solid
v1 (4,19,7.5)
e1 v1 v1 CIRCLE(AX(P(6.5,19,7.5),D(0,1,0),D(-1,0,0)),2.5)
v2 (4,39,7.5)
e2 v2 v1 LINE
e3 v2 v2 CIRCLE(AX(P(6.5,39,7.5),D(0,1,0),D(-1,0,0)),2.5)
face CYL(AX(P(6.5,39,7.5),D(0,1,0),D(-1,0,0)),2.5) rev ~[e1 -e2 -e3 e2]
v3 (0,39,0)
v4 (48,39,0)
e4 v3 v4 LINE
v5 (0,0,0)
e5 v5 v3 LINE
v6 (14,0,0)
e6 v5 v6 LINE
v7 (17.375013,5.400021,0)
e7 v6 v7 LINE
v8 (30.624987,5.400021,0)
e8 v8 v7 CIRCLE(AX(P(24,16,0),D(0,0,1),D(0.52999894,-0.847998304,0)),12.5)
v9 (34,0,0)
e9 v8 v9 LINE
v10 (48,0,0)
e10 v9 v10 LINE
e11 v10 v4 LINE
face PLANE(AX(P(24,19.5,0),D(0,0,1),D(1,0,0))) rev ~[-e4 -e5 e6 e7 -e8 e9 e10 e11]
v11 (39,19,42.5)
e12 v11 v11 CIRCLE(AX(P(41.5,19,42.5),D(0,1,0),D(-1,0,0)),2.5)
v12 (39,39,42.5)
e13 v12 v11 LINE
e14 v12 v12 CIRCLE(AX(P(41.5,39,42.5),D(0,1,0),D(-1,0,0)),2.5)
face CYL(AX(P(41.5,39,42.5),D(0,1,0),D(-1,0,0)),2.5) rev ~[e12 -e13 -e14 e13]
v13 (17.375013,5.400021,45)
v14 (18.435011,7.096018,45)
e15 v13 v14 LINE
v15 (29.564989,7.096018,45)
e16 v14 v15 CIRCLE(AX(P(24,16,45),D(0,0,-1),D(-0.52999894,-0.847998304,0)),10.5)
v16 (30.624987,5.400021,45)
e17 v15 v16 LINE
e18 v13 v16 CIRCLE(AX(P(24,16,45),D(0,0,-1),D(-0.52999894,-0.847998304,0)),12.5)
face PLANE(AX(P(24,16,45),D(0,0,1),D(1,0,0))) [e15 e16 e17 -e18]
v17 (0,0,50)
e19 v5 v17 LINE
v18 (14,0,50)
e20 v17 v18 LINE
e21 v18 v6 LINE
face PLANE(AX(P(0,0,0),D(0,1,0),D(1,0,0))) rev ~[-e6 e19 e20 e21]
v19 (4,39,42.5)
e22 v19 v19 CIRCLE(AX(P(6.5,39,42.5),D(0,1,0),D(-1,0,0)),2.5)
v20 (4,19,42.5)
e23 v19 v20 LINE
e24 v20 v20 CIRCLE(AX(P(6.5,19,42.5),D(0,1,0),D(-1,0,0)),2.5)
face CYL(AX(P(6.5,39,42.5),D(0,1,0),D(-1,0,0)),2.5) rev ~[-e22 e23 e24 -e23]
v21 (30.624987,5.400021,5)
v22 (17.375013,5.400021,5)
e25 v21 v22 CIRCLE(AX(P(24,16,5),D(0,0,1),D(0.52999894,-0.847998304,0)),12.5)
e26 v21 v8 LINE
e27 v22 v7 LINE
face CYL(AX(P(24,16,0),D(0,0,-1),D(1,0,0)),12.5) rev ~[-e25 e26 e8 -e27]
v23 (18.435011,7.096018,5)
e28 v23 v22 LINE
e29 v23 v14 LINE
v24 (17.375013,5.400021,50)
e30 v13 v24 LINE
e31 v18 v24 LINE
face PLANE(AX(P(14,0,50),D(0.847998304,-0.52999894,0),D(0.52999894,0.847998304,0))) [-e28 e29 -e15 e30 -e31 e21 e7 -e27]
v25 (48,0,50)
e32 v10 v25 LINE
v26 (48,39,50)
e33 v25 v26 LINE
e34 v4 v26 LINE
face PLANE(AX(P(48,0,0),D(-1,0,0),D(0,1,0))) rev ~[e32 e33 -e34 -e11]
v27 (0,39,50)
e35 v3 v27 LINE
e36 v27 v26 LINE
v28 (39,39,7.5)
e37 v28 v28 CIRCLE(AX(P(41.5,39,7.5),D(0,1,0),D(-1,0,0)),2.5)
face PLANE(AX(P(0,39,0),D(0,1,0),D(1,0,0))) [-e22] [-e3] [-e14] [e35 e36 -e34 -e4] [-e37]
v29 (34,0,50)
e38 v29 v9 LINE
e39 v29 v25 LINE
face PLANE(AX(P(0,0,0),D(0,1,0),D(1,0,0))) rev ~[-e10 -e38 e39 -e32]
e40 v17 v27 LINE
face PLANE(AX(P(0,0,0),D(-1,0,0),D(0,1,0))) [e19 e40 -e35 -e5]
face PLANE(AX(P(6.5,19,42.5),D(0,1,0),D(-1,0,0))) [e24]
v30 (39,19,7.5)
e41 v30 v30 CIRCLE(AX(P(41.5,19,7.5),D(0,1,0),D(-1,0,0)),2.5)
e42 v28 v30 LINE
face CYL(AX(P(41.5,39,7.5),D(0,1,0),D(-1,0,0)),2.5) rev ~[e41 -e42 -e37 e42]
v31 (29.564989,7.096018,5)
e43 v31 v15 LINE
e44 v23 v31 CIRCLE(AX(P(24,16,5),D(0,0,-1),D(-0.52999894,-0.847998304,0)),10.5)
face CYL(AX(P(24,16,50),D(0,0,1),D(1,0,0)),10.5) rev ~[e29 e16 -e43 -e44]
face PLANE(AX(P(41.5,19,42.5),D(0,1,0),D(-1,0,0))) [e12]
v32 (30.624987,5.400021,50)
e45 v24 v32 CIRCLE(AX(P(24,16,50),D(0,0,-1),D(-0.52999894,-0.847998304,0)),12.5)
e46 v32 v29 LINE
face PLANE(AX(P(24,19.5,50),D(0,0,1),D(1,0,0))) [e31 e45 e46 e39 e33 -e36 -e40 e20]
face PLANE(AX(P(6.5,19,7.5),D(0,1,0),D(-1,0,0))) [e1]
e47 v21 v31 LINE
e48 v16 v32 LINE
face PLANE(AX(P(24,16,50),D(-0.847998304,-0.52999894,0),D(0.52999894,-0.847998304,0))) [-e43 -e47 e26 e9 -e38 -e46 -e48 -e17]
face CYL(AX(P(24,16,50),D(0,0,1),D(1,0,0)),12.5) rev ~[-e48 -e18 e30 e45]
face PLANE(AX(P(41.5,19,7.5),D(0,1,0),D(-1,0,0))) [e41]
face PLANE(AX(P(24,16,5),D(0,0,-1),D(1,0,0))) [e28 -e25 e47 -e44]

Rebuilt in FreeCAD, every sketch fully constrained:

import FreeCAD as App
import Part
import Sketcher
from FreeCAD import Vector
Q = App.Units.Quantity

doc = App.newDocument("Part")
body = doc.addObject("PartDesign::Body", "Body")

# Sketch on XY plane
sketch1 = body.newObject("Sketcher::SketchObject", "Sketch")
sketch1.AttachmentSupport = (doc.getObject("XY_Plane"), [""])
sketch1.MapMode = "FlatFace"
sketch1.addGeometry(Part.LineSegment(Vector(0, 39, 0), Vector(0, 0, 0)), False)
sketch1.addGeometry(Part.LineSegment(Vector(0, 0, 0), Vector(48, 0, 0)), False)
sketch1.addGeometry(Part.LineSegment(Vector(48, 0, 0), Vector(48, 39, 0)), False)
sketch1.addGeometry(Part.LineSegment(Vector(48, 39, 0), Vector(0, 39, 0)), False)
sketch1.addConstraint(Sketcher.Constraint("Coincident", 0, 2, 1, 1))
sketch1.addConstraint(Sketcher.Constraint("Coincident", 1, 2, 2, 1))
sketch1.addConstraint(Sketcher.Constraint("Coincident", 2, 2, 3, 1))
sketch1.addConstraint(Sketcher.Constraint("Coincident", 3, 2, 0, 1))
sketch1.addConstraint(Sketcher.Constraint("Vertical", 0))
sketch1.addConstraint(Sketcher.Constraint("Horizontal", 1))
sketch1.addConstraint(Sketcher.Constraint("Vertical", 2))
sketch1.addConstraint(Sketcher.Constraint("Horizontal", 3))
sketch1.addConstraint(Sketcher.Constraint("Coincident", 0, 2, -1, 1))
sketch1.addConstraint(Sketcher.Constraint("DistanceX", 1, 1, 1, 2, Q("48 mm")))
sketch1.addConstraint(Sketcher.Constraint("DistanceY", 0, 2, 0, 1, Q("39 mm")))
pad1 = body.newObject("PartDesign::Pad", "Pad")
pad1.Profile = sketch1
pad1.Length = 50

# Sketch on XY plane
sketch2 = body.newObject("Sketcher::SketchObject", "Sketch001")
sketch2.AttachmentSupport = (doc.getObject("XY_Plane"), [""])
sketch2.MapMode = "FlatFace"
sketch2.AttachmentOffset = App.Placement(Vector(0, 0, 50), App.Rotation())
sketch2.addGeometry(Part.Circle(Vector(24, 16, 0), Vector(0, 0, 1), 10), False)
sketch2.addConstraint(Sketcher.Constraint("Diameter", 0, Q("21 mm")))
sketch2.addConstraint(Sketcher.Constraint("DistanceX", -1, 1, 0, 3, Q("24 mm")))
sketch2.addConstraint(Sketcher.Constraint("DistanceY", -1, 1, 0, 3, Q("16 mm")))
pocket1 = body.newObject("PartDesign::Pocket", "Pocket")
pocket1.Profile = sketch2
pocket1.Length = 51

# Sketch on XY plane
sketch3 = body.newObject("Sketcher::SketchObject", "Sketch002")
sketch3.AttachmentSupport = (doc.getObject("XY_Plane"), [""])
sketch3.MapMode = "FlatFace"
sketch3.AttachmentOffset = App.Placement(Vector(0, 0, 50), App.Rotation())
sketch3.addGeometry(Part.Circle(Vector(24, 16, 0), Vector(0, 0, 1), 12), False)
sketch3.addConstraint(Sketcher.Constraint("Diameter", 0, Q("25 mm")))
sketch3.addConstraint(Sketcher.Constraint("DistanceX", -1, 1, 0, 3, Q("24 mm")))
sketch3.addConstraint(Sketcher.Constraint("DistanceY", -1, 1, 0, 3, Q("16 mm")))
pocket2 = body.newObject("PartDesign::Pocket", "Pocket001")
pocket2.Profile = sketch3
pocket2.Length = 5

# Sketch on XY plane
sketch4 = body.newObject("Sketcher::SketchObject", "Sketch003")
sketch4.AttachmentSupport = (doc.getObject("XY_Plane"), [""])
sketch4.MapMode = "FlatFace"
sketch4.addGeometry(Part.Circle(Vector(24, 16, 0), Vector(0, 0, 1), 12), False)
sketch4.addConstraint(Sketcher.Constraint("Diameter", 0, Q("25 mm")))
sketch4.addConstraint(Sketcher.Constraint("DistanceX", -1, 1, 0, 3, Q("24 mm")))
sketch4.addConstraint(Sketcher.Constraint("DistanceY", -1, 1, 0, 3, Q("16 mm")))
pocket3 = body.newObject("PartDesign::Pocket", "Pocket002")
pocket3.Profile = sketch4
pocket3.Length = 5
pocket3.Reversed = True

# Sketch on XY plane
sketch5 = body.newObject("Sketcher::SketchObject", "Sketch004")
sketch5.AttachmentSupport = (doc.getObject("XY_Plane"), [""])
sketch5.MapMode = "FlatFace"
sketch5.AttachmentOffset = App.Placement(Vector(0, 0, 50), App.Rotation())
sketch5.addGeometry(Part.LineSegment(Vector(24, 16, 0), Vector(14, 0, 0)), False)
sketch5.addGeometry(Part.LineSegment(Vector(14, 0, 0), Vector(34, 0, 0)), False)
sketch5.addGeometry(Part.LineSegment(Vector(34, 0, 0), Vector(24, 16, 0)), False)
sketch5.addConstraint(Sketcher.Constraint("Coincident", 0, 2, 1, 1))
sketch5.addConstraint(Sketcher.Constraint("Coincident", 1, 2, 2, 1))
sketch5.addConstraint(Sketcher.Constraint("Coincident", 2, 2, 0, 1))
sketch5.addConstraint(Sketcher.Constraint("Horizontal", 1))
sketch5.addConstraint(Sketcher.Constraint("PointOnObject", 0, 2, -1))
sketch5.addConstraint(Sketcher.Constraint("Equal", 0, 2))
sketch5.addConstraint(Sketcher.Constraint("DistanceX", 1, 1, 1, 2, Q("20 mm")))
sketch5.addConstraint(Sketcher.Constraint("DistanceX", -1, 1, 0, 2, Q("14 mm")))
sketch5.addConstraint(Sketcher.Constraint("DistanceY", -1, 1, 2, 2, Q("16 mm")))
pocket4 = body.newObject("PartDesign::Pocket", "Pocket003")
pocket4.Profile = sketch5
pocket4.Length = 51

# Sketch on XZ plane
sketch6 = body.newObject("Sketcher::SketchObject", "Sketch005")
sketch6.AttachmentSupport = (doc.getObject("XZ_Plane"), [""])
sketch6.MapMode = "FlatFace"
sketch6.AttachmentOffset = App.Placement(Vector(0, 0, -39), App.Rotation())
sketch6.addGeometry(Part.Circle(Vector(41.5, 42.5, 0), Vector(0, 0, 1), 2.5), False)
sketch6.addGeometry(Part.Circle(Vector(6.5, 42.5, 0), Vector(0, 0, 1), 2.5), False)
sketch6.addGeometry(Part.Circle(Vector(41.5, 7.5, 0), Vector(0, 0, 1), 2.5), False)
sketch6.addGeometry(Part.Circle(Vector(6.5, 7.5, 0), Vector(0, 0, 1), 2.5), False)
sketch6.addConstraint(Sketcher.Constraint("Equal", 0, 1))
sketch6.addConstraint(Sketcher.Constraint("Equal", 1, 2))
sketch6.addConstraint(Sketcher.Constraint("Equal", 2, 3))
sketch6.addConstraint(Sketcher.Constraint("Horizontal", 0, 3, 1, 3))
sketch6.addConstraint(Sketcher.Constraint("Horizontal", 2, 3, 3, 3))
sketch6.addConstraint(Sketcher.Constraint("Vertical", 0, 3, 2, 3))
sketch6.addConstraint(Sketcher.Constraint("Vertical", 1, 3, 3, 3))
sketch6.addConstraint(Sketcher.Constraint("Diameter", 0, Q("5 mm")))
sketch6.addConstraint(Sketcher.Constraint("DistanceX", 1, 3, 0, 3, Q("35 mm")))
sketch6.addConstraint(Sketcher.Constraint("DistanceY", 2, 3, 0, 3, Q("35 mm")))
sketch6.addConstraint(Sketcher.Constraint("DistanceX", -1, 1, 0, 3, Q("41.5 mm")))
sketch6.addConstraint(Sketcher.Constraint("DistanceY", -1, 1, 0, 3, Q("42.5 mm")))
pocket5 = body.newObject("PartDesign::Pocket", "Pocket004")
pocket5.Profile = sketch6
pocket5.Length = 20
pocket5.Reversed = True

doc.recompute()
